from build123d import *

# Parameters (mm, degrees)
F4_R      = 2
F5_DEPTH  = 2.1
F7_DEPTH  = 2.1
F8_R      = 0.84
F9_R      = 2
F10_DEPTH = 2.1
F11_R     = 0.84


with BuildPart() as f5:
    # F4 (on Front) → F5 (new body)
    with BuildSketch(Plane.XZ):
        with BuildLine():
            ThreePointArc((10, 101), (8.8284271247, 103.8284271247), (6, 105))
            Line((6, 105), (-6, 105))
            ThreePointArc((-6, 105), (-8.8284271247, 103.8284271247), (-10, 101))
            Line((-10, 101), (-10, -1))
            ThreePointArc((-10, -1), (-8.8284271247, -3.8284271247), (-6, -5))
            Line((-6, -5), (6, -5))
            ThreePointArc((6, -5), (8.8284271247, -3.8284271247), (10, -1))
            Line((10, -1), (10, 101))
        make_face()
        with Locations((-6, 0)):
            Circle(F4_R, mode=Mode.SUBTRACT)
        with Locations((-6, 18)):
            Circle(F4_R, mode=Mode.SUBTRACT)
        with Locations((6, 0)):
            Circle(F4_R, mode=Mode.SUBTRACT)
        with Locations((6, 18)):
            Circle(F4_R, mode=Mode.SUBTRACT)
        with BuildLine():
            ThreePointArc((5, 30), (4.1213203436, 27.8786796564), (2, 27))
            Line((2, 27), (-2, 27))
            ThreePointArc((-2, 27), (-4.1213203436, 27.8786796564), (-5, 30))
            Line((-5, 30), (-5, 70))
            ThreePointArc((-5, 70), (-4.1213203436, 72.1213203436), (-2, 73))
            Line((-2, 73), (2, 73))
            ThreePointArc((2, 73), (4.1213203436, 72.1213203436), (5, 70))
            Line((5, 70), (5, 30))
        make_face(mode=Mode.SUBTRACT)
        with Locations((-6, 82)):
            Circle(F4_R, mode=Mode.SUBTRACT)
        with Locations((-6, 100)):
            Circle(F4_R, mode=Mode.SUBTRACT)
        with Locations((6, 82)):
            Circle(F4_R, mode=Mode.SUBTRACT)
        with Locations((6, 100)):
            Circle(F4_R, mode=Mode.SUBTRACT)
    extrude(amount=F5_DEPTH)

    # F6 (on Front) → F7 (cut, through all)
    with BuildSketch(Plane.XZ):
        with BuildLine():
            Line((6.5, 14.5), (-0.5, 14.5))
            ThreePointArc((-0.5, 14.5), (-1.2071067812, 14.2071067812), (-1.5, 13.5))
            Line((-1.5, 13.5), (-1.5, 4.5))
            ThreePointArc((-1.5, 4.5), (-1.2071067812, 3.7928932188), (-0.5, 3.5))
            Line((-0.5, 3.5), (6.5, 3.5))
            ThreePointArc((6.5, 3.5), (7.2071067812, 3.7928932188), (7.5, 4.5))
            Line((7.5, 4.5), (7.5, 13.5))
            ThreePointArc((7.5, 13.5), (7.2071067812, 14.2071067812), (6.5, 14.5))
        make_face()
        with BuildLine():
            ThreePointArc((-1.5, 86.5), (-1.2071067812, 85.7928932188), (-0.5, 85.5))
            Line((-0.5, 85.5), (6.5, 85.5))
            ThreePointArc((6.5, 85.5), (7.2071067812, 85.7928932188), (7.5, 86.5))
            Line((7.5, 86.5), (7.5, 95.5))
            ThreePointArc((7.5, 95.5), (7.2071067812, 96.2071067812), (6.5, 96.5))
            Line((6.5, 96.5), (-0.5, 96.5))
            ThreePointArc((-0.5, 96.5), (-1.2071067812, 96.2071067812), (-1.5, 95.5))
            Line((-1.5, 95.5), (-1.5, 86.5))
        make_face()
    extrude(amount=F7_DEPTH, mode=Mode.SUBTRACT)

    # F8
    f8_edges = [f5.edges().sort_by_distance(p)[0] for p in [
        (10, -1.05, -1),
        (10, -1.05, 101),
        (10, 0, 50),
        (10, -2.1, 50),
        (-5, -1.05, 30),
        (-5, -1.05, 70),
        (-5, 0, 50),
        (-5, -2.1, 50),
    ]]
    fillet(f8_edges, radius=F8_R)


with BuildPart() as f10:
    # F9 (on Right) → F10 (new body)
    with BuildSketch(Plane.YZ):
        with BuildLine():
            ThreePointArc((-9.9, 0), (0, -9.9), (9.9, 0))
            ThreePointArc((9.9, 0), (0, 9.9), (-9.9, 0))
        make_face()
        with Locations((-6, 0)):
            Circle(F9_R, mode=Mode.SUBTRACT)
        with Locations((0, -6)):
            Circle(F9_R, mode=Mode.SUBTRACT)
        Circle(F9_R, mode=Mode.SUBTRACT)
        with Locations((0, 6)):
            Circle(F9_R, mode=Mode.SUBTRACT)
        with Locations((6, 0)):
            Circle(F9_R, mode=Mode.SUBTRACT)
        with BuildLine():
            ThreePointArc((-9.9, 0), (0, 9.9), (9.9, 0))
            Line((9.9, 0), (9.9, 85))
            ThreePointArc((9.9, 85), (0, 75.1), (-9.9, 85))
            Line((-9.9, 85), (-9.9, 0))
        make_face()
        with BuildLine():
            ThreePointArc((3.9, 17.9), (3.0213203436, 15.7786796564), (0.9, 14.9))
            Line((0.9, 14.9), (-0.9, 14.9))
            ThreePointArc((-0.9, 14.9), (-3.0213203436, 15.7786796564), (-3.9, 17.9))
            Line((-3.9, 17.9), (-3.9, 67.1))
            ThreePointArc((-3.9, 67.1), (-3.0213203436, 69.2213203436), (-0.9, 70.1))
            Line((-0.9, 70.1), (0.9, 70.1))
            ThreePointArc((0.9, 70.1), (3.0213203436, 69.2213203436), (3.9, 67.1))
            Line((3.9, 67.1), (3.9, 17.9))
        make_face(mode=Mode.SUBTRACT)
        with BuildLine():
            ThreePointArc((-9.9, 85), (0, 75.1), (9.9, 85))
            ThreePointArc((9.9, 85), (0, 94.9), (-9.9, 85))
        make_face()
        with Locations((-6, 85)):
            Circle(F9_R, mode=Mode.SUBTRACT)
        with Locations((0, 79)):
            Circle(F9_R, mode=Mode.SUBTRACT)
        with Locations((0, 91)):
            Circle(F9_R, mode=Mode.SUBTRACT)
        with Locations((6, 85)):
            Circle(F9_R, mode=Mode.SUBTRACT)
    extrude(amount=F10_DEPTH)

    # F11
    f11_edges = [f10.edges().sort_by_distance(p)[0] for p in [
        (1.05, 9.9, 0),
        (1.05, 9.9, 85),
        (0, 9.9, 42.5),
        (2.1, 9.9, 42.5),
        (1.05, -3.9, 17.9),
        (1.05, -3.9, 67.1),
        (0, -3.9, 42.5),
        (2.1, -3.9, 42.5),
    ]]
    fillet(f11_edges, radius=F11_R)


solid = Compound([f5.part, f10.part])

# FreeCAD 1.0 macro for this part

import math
import FreeCAD as App
import Part
import Sketcher
Q = App.Units.Quantity


def edges_at(feature, points):
    """Names of the edges that pass closest to the given points."""
    edges = feature.Shape.Edges
    near = lambda p: min(range(len(edges)), key=lambda i: edges[i].distToShape(Part.Vertex(*p))[0])
    return sorted({f"Edge{near(p) + 1}" for p in points})

doc = App.newDocument("Part")
body = doc.addObject("PartDesign::Body", "Body")

sketch1 = body.newObject("Sketcher::SketchObject", "Sketch")
sketch1.AttachmentSupport = (doc.getObject("XZ_Plane"), [""])
sketch1.MapMode = "FlatFace"
sketch1.addGeometry([
    Part.ArcOfCircle(Part.Circle(App.Vector(6, 101, 0), App.Vector(0, 0, 1), 4), math.radians(0), math.radians(90)),
    Part.LineSegment(App.Vector(6, 105, 0), App.Vector(-6, 105, 0)),
    Part.ArcOfCircle(Part.Circle(App.Vector(-6, 101, 0), App.Vector(0, 0, 1), 4), math.radians(90), math.radians(180)),
    Part.LineSegment(App.Vector(-10, 101, 0), App.Vector(-10, -1, 0)),
    Part.ArcOfCircle(Part.Circle(App.Vector(-6, -1, 0), App.Vector(0, 0, 1), 4), math.radians(180), math.radians(270)),
    Part.LineSegment(App.Vector(-6, -5, 0), App.Vector(6, -5, 0)),
    Part.ArcOfCircle(Part.Circle(App.Vector(6, -1, 0), App.Vector(0, 0, 1), 4), math.radians(-90), math.radians(0)),
    Part.LineSegment(App.Vector(10, -1, 0), App.Vector(10, 101, 0)),
    Part.Circle(App.Vector(-6, 0, 0), App.Vector(0, 0, 1), 2),
    Part.Circle(App.Vector(-6, 18, 0), App.Vector(0, 0, 1), 2),
    Part.Circle(App.Vector(6, 0, 0), App.Vector(0, 0, 1), 2),
    Part.Circle(App.Vector(6, 18, 0), App.Vector(0, 0, 1), 2),
    Part.LineSegment(App.Vector(5, 70, 0), App.Vector(5, 30, 0)),
    Part.ArcOfCircle(Part.Circle(App.Vector(2, 30, 0), App.Vector(0, 0, 1), 3), math.radians(-90), math.radians(0)),
    Part.LineSegment(App.Vector(2, 27, 0), App.Vector(-2, 27, 0)),
    Part.ArcOfCircle(Part.Circle(App.Vector(-2, 30, 0), App.Vector(0, 0, 1), 3), math.radians(180), math.radians(270)),
    Part.LineSegment(App.Vector(-5, 30, 0), App.Vector(-5, 70, 0)),
    Part.ArcOfCircle(Part.Circle(App.Vector(-2, 70, 0), App.Vector(0, 0, 1), 3), math.radians(90), math.radians(180)),
    Part.LineSegment(App.Vector(-2, 73, 0), App.Vector(2, 73, 0)),
    Part.ArcOfCircle(Part.Circle(App.Vector(2, 70, 0), App.Vector(0, 0, 1), 3), math.radians(0), math.radians(90)),
    Part.Circle(App.Vector(-6, 82, 0), App.Vector(0, 0, 1), 2),
    Part.Circle(App.Vector(-6, 100, 0), App.Vector(0, 0, 1), 2),
    Part.Circle(App.Vector(6, 82, 0), App.Vector(0, 0, 1), 2),
    Part.Circle(App.Vector(6, 100, 0), App.Vector(0, 0, 1), 2),
], False)
sketch1.addConstraint([
    Sketcher.Constraint("Tangent", 0, 2, 1, 1),
    Sketcher.Constraint("Tangent", 1, 2, 2, 1),
    Sketcher.Constraint("Tangent", 2, 2, 3, 1),
    Sketcher.Constraint("Tangent", 3, 2, 4, 1),
    Sketcher.Constraint("Tangent", 4, 2, 5, 1),
    Sketcher.Constraint("Tangent", 5, 2, 6, 1),
    Sketcher.Constraint("Tangent", 6, 2, 7, 1),
    Sketcher.Constraint("Tangent", 7, 2, 0, 1),
    Sketcher.Constraint("Tangent", 12, 2, 13, 2),
    Sketcher.Constraint("Tangent", 13, 1, 14, 1),
    Sketcher.Constraint("Tangent", 14, 2, 15, 2),
    Sketcher.Constraint("Tangent", 15, 1, 16, 1),
    Sketcher.Constraint("Tangent", 16, 2, 17, 2),
    Sketcher.Constraint("Tangent", 17, 1, 18, 1),
    Sketcher.Constraint("Tangent", 18, 2, 19, 2),
    Sketcher.Constraint("Tangent", 19, 1, 12, 1),
    Sketcher.Constraint("Horizontal", 1),
    Sketcher.Constraint("Vertical", 3),
    Sketcher.Constraint("Horizontal", 5),
    Sketcher.Constraint("Vertical", 7),
    Sketcher.Constraint("Vertical", 12),
    Sketcher.Constraint("Horizontal", 14),
    Sketcher.Constraint("Vertical", 16),
    Sketcher.Constraint("Horizontal", 18),
    Sketcher.Constraint("Equal", 0, 2),
    Sketcher.Constraint("Equal", 2, 4),
    Sketcher.Constraint("Equal", 4, 6),
    Sketcher.Constraint("Equal", 8, 9),
    Sketcher.Constraint("Equal", 9, 10),
    Sketcher.Constraint("Equal", 10, 11),
    Sketcher.Constraint("Equal", 13, 15),
    Sketcher.Constraint("Equal", 15, 17),
    Sketcher.Constraint("Equal", 17, 19),
    Sketcher.Constraint("Equal", 11, 20),
    Sketcher.Constraint("Equal", 20, 21),
    Sketcher.Constraint("Equal", 21, 22),
    Sketcher.Constraint("Equal", 22, 23),
    Sketcher.Constraint("Symmetric", 8, 3, 10, 3, -1, 1),
    Sketcher.Constraint("Symmetric", 9, 3, 11, 3, -2),
    Sketcher.Constraint("Symmetric", 20, 3, 22, 3, -2),
    Sketcher.Constraint("Symmetric", 21, 3, 23, 3, -2),
    Sketcher.Constraint("PointOnObject", 8, 3, -1),
    Sketcher.Constraint("Vertical", 4, 3, 8, 3),
    Sketcher.Constraint("Vertical", 8, 3, 9, 3),
    Sketcher.Constraint("Vertical", 6, 3, 10, 3),
    Sketcher.Constraint("Vertical", 9, 3, 20, 3),
    Sketcher.Constraint("Vertical", 20, 3, 21, 3),
    Sketcher.Constraint("Diameter", 8, Q("4 mm")),
    Sketcher.Constraint("Radius", 0, Q("4 mm")),
    Sketcher.Constraint("Radius", 13, Q("3 mm")),
    Sketcher.Constraint("DistanceX", 1, 2, 1, 1, Q("12 mm")),
    Sketcher.Constraint("DistanceX", 14, 2, 14, 1, Q("4 mm")),
    Sketcher.Constraint("DistanceY", 3, 2, 3, 1, Q("102 mm")),
    Sketcher.Constraint("DistanceY", 12, 2, 12, 1, Q("40 mm")),
    Sketcher.Constraint("DistanceY", -1, 1, 0, 3, Q("101 mm")),
    Sketcher.Constraint("DistanceY", -1, 1, 9, 3, Q("18 mm")),
    Sketcher.Constraint("DistanceX", -1, 1, 13, 3, Q("2 mm")),
    Sketcher.Constraint("DistanceY", -1, 1, 13, 3, Q("30 mm")),
    Sketcher.Constraint("DistanceY", -1, 1, 20, 3, Q("82 mm")),
    Sketcher.Constraint("DistanceY", -1, 1, 21, 3, Q("100 mm")),
])
pad1 = body.newObject("PartDesign::Pad", "Pad")
pad1.Profile = sketch1
pad1.Length = 2.1

sketch2 = body.newObject("Sketcher::SketchObject", "Sketch001")
sketch2.AttachmentSupport = (doc.getObject("XZ_Plane"), [""])
sketch2.MapMode = "FlatFace"
sketch2.addGeometry([
    Part.LineSegment(App.Vector(6.5, 14.5, 0), App.Vector(-0.5, 14.5, 0)),
    Part.ArcOfCircle(Part.Circle(App.Vector(-0.5, 13.5, 0), App.Vector(0, 0, 1), 1), math.radians(90), math.radians(180)),
    Part.LineSegment(App.Vector(-1.5, 13.5, 0), App.Vector(-1.5, 4.5, 0)),
    Part.ArcOfCircle(Part.Circle(App.Vector(-0.5, 4.5, 0), App.Vector(0, 0, 1), 1), math.radians(180), math.radians(270)),
    Part.LineSegment(App.Vector(-0.5, 3.5, 0), App.Vector(6.5, 3.5, 0)),
    Part.ArcOfCircle(Part.Circle(App.Vector(6.5, 4.5, 0), App.Vector(0, 0, 1), 1), math.radians(-90), math.radians(0)),
    Part.LineSegment(App.Vector(7.5, 4.5, 0), App.Vector(7.5, 13.5, 0)),
    Part.ArcOfCircle(Part.Circle(App.Vector(6.5, 13.5, 0), App.Vector(0, 0, 1), 1), math.radians(0), math.radians(90)),
    Part.ArcOfCircle(Part.Circle(App.Vector(-0.5, 86.5, 0), App.Vector(0, 0, 1), 1), math.radians(180), math.radians(270)),
    Part.LineSegment(App.Vector(-0.5, 85.5, 0), App.Vector(6.5, 85.5, 0)),
    Part.ArcOfCircle(Part.Circle(App.Vector(6.5, 86.5, 0), App.Vector(0, 0, 1), 1), math.radians(-90), math.radians(0)),
    Part.LineSegment(App.Vector(7.5, 86.5, 0), App.Vector(7.5, 95.5, 0)),
    Part.ArcOfCircle(Part.Circle(App.Vector(6.5, 95.5, 0), App.Vector(0, 0, 1), 1), math.radians(0), math.radians(90)),
    Part.LineSegment(App.Vector(6.5, 96.5, 0), App.Vector(-0.5, 96.5, 0)),
    Part.ArcOfCircle(Part.Circle(App.Vector(-0.5, 95.5, 0), App.Vector(0, 0, 1), 1), math.radians(90), math.radians(180)),
    Part.LineSegment(App.Vector(-1.5, 95.5, 0), App.Vector(-1.5, 86.5, 0)),
], False)
sketch2.addConstraint([
    Sketcher.Constraint("Tangent", 0, 2, 1, 1),
    Sketcher.Constraint("Tangent", 1, 2, 2, 1),
    Sketcher.Constraint("Tangent", 2, 2, 3, 1),
    Sketcher.Constraint("Tangent", 3, 2, 4, 1),
    Sketcher.Constraint("Tangent", 4, 2, 5, 1),
    Sketcher.Constraint("Tangent", 5, 2, 6, 1),
    Sketcher.Constraint("Tangent", 6, 2, 7, 1),
    Sketcher.Constraint("Tangent", 7, 2, 0, 1),
    Sketcher.Constraint("Tangent", 8, 2, 9, 1),
    Sketcher.Constraint("Tangent", 9, 2, 10, 1),
    Sketcher.Constraint("Tangent", 10, 2, 11, 1),
    Sketcher.Constraint("Tangent", 11, 2, 12, 1),
    Sketcher.Constraint("Tangent", 12, 2, 13, 1),
    Sketcher.Constraint("Tangent", 13, 2, 14, 1),
    Sketcher.Constraint("Tangent", 14, 2, 15, 1),
    Sketcher.Constraint("Tangent", 15, 2, 8, 1),
    Sketcher.Constraint("Horizontal", 0),
    Sketcher.Constraint("Vertical", 2),
    Sketcher.Constraint("Horizontal", 4),
    Sketcher.Constraint("Vertical", 6),
    Sketcher.Constraint("Horizontal", 9),
    Sketcher.Constraint("Vertical", 11),
    Sketcher.Constraint("Horizontal", 13),
    Sketcher.Constraint("Vertical", 15),
    Sketcher.Constraint("Equal", 1, 3),
    Sketcher.Constraint("Equal", 3, 5),
    Sketcher.Constraint("Equal", 5, 7),
    Sketcher.Constraint("Equal", 7, 8),
    Sketcher.Constraint("Equal", 8, 10),
    Sketcher.Constraint("Equal", 10, 12),
    Sketcher.Constraint("Equal", 12, 14),
    Sketcher.Constraint("Vertical", 3, 3, 8, 3),
    Sketcher.Constraint("Vertical", 7, 3, 10, 3),
    Sketcher.Constraint("Equal", 6, 11),
    Sketcher.Constraint("Radius", 1, Q("1 mm")),
    Sketcher.Constraint("DistanceX", 0, 2, 0, 1, Q("7 mm")),
    Sketcher.Constraint("DistanceY", 2, 2, 2, 1, Q("9 mm")),
    Sketcher.Constraint("DistanceY", 1, 3, 8, 3, Q("73 mm")),
    Sketcher.Constraint("DistanceX", 1, 3, -1, 1, Q("0.5 mm")),
    Sketcher.Constraint("DistanceY", -1, 1, 1, 3, Q("13.5 mm")),
])
pocket1 = body.newObject("PartDesign::Pocket", "Pocket")
pocket1.Profile = sketch2
pocket1.Type = "ThroughAll"
pocket1.Reversed = True
doc.recompute()

fillet = body.newObject("PartDesign::Fillet", "Fillet")
fillet.Base = (pocket1, edges_at(pocket1, [
    (10, -1.05, -1),
    (10, -1.05, 101),
    (10, 0, 50),
    (10, -2.1, 50),
    (-5, -1.05, 30),
    (-5, -1.05, 70),
    (-5, 0, 50),
    (-5, -2.1, 50),
]))
fillet.Radius = 0.84
body2 = doc.addObject("PartDesign::Body", "Body001")

sketch3 = body2.newObject("Sketcher::SketchObject", "Sketch002")
sketch3.AttachmentSupport = (doc.getObject("YZ_Plane001"), [""])
sketch3.MapMode = "FlatFace"
sketch3.addGeometry([
    Part.ArcOfCircle(Part.Circle(App.Vector(0, 0, 0), App.Vector(0, 0, 1), 9.9), math.radians(180), math.radians(360)),
    Part.LineSegment(App.Vector(9.9, 0, 0), App.Vector(9.9, 85, 0)),
    Part.ArcOfCircle(Part.Circle(App.Vector(0, 85, 0), App.Vector(0, 0, 1), 9.9), math.radians(0), math.radians(180)),
    Part.LineSegment(App.Vector(-9.9, 85, 0), App.Vector(-9.9, 0, 0)),
    Part.Circle(App.Vector(-6, 0, 0), App.Vector(0, 0, 1), 2),
    Part.Circle(App.Vector(0, -6, 0), App.Vector(0, 0, 1), 2),
    Part.Circle(App.Vector(0, 0, 0), App.Vector(0, 0, 1), 2),
    Part.Circle(App.Vector(0, 6, 0), App.Vector(0, 0, 1), 2),
    Part.Circle(App.Vector(6, 0, 0), App.Vector(0, 0, 1), 2),
    Part.Circle(App.Vector(-6, 85, 0), App.Vector(0, 0, 1), 2),
    Part.LineSegment(App.Vector(3.9, 67.1, 0), App.Vector(3.9, 17.9, 0)),
    Part.ArcOfCircle(Part.Circle(App.Vector(0.9, 17.9, 0), App.Vector(0, 0, 1), 3), math.radians(-90), math.radians(0)),
    Part.LineSegment(App.Vector(0.9, 14.9, 0), App.Vector(-0.9, 14.9, 0)),
    Part.ArcOfCircle(Part.Circle(App.Vector(-0.9, 17.9, 0), App.Vector(0, 0, 1), 3), math.radians(180), math.radians(270)),
    Part.LineSegment(App.Vector(-3.9, 17.9, 0), App.Vector(-3.9, 67.1, 0)),
    Part.ArcOfCircle(Part.Circle(App.Vector(-0.9, 67.1, 0), App.Vector(0, 0, 1), 3), math.radians(90), math.radians(180)),
    Part.LineSegment(App.Vector(-0.9, 70.1, 0), App.Vector(0.9, 70.1, 0)),
    Part.ArcOfCircle(Part.Circle(App.Vector(0.9, 67.1, 0), App.Vector(0, 0, 1), 3), math.radians(0), math.radians(90)),
    Part.Circle(App.Vector(0, 79, 0), App.Vector(0, 0, 1), 2),
    Part.Circle(App.Vector(0, 91, 0), App.Vector(0, 0, 1), 2),
    Part.Circle(App.Vector(6, 85, 0), App.Vector(0, 0, 1), 2),
], False)
sketch3.addConstraint([
    Sketcher.Constraint("Tangent", 0, 2, 1, 1),
    Sketcher.Constraint("Tangent", 1, 2, 2, 1),
    Sketcher.Constraint("Tangent", 2, 2, 3, 1),
    Sketcher.Constraint("Tangent", 3, 2, 0, 1),
    Sketcher.Constraint("Tangent", 10, 2, 11, 2),
    Sketcher.Constraint("Tangent", 11, 1, 12, 1),
    Sketcher.Constraint("Tangent", 12, 2, 13, 2),
    Sketcher.Constraint("Tangent", 13, 1, 14, 1),
    Sketcher.Constraint("Tangent", 14, 2, 15, 2),
    Sketcher.Constraint("Tangent", 15, 1, 16, 1),
    Sketcher.Constraint("Tangent", 16, 2, 17, 2),
    Sketcher.Constraint("Tangent", 17, 1, 10, 1),
    Sketcher.Constraint("Vertical", 1),
    Sketcher.Constraint("Vertical", 3),
    Sketcher.Constraint("Vertical", 10),
    Sketcher.Constraint("Horizontal", 12),
    Sketcher.Constraint("Vertical", 14),
    Sketcher.Constraint("Horizontal", 16),
    Sketcher.Constraint("Coincident", 0, 3, -1, 1),
    Sketcher.Constraint("Coincident", 6, 3, -1, 1),
    Sketcher.Constraint("Equal", 4, 5),
    Sketcher.Constraint("Equal", 5, 6),
    Sketcher.Constraint("Equal", 6, 7),
    Sketcher.Constraint("Equal", 7, 8),
    Sketcher.Constraint("Equal", 8, 9),
    Sketcher.Constraint("Equal", 11, 13),
    Sketcher.Constraint("Equal", 13, 15),
    Sketcher.Constraint("Equal", 15, 17),
    Sketcher.Constraint("Equal", 9, 18),
    Sketcher.Constraint("Equal", 18, 19),
    Sketcher.Constraint("Equal", 19, 20),
    Sketcher.Constraint("Symmetric", 5, 3, 7, 3, -1, 1),
    Sketcher.Constraint("Symmetric", 4, 3, 8, 3, -1, 1),
    Sketcher.Constraint("Symmetric", 9, 3, 20, 3, -2),
    Sketcher.Constraint("PointOnObject", 4, 3, -1),
    Sketcher.Constraint("PointOnObject", 5, 3, -2),
    Sketcher.Constraint("PointOnObject", 18, 3, -2),
    Sketcher.Constraint("PointOnObject", 19, 3, -2),
    Sketcher.Constraint("Horizontal", 2, 3, 9, 3),
    Sketcher.Constraint("Vertical", 4, 3, 9, 3),
    Sketcher.Constraint("Diameter", 4, Q("4 mm")),
    Sketcher.Constraint("Radius", 11, Q("3 mm")),
    Sketcher.Constraint("Radius", 0, Q("9.9 mm")),
    Sketcher.Constraint("DistanceY", 1, 1, 1, 2, Q("85 mm")),
    Sketcher.Constraint("DistanceX", 12, 2, 12, 1, Q("1.8 mm")),
    Sketcher.Constraint("DistanceY", 10, 2, 10, 1, Q("49.2 mm")),
    Sketcher.Constraint("DistanceX", 4, 3, -1, 1, Q("6 mm")),
    Sketcher.Constraint("DistanceY", 5, 3, -1, 1, Q("6 mm")),
    Sketcher.Constraint("DistanceY", -1, 1, 18, 3, Q("79 mm")),
    Sketcher.Constraint("DistanceY", -1, 1, 19, 3, Q("91 mm")),
    Sketcher.Constraint("DistanceX", -1, 1, 11, 3, Q("0.9 mm")),
    Sketcher.Constraint("DistanceY", -1, 1, 11, 3, Q("17.9 mm")),
])
pad2 = body2.newObject("PartDesign::Pad", "Pad001")
pad2.Profile = sketch3
pad2.Length = 2.1
doc.recompute()

fillet2 = body2.newObject("PartDesign::Fillet", "Fillet001")
fillet2.Base = (pad2, edges_at(pad2, [
    (1.05, 9.9, 0),
    (1.05, 9.9, 85),
    (0, 9.9, 42.5),
    (2.1, 9.9, 42.5),
    (1.05, -3.9, 17.9),
    (1.05, -3.9, 67.1),
    (0, -3.9, 42.5),
    (2.1, -3.9, 42.5),
]))
fillet2.Radius = 0.84

doc.recompute()
